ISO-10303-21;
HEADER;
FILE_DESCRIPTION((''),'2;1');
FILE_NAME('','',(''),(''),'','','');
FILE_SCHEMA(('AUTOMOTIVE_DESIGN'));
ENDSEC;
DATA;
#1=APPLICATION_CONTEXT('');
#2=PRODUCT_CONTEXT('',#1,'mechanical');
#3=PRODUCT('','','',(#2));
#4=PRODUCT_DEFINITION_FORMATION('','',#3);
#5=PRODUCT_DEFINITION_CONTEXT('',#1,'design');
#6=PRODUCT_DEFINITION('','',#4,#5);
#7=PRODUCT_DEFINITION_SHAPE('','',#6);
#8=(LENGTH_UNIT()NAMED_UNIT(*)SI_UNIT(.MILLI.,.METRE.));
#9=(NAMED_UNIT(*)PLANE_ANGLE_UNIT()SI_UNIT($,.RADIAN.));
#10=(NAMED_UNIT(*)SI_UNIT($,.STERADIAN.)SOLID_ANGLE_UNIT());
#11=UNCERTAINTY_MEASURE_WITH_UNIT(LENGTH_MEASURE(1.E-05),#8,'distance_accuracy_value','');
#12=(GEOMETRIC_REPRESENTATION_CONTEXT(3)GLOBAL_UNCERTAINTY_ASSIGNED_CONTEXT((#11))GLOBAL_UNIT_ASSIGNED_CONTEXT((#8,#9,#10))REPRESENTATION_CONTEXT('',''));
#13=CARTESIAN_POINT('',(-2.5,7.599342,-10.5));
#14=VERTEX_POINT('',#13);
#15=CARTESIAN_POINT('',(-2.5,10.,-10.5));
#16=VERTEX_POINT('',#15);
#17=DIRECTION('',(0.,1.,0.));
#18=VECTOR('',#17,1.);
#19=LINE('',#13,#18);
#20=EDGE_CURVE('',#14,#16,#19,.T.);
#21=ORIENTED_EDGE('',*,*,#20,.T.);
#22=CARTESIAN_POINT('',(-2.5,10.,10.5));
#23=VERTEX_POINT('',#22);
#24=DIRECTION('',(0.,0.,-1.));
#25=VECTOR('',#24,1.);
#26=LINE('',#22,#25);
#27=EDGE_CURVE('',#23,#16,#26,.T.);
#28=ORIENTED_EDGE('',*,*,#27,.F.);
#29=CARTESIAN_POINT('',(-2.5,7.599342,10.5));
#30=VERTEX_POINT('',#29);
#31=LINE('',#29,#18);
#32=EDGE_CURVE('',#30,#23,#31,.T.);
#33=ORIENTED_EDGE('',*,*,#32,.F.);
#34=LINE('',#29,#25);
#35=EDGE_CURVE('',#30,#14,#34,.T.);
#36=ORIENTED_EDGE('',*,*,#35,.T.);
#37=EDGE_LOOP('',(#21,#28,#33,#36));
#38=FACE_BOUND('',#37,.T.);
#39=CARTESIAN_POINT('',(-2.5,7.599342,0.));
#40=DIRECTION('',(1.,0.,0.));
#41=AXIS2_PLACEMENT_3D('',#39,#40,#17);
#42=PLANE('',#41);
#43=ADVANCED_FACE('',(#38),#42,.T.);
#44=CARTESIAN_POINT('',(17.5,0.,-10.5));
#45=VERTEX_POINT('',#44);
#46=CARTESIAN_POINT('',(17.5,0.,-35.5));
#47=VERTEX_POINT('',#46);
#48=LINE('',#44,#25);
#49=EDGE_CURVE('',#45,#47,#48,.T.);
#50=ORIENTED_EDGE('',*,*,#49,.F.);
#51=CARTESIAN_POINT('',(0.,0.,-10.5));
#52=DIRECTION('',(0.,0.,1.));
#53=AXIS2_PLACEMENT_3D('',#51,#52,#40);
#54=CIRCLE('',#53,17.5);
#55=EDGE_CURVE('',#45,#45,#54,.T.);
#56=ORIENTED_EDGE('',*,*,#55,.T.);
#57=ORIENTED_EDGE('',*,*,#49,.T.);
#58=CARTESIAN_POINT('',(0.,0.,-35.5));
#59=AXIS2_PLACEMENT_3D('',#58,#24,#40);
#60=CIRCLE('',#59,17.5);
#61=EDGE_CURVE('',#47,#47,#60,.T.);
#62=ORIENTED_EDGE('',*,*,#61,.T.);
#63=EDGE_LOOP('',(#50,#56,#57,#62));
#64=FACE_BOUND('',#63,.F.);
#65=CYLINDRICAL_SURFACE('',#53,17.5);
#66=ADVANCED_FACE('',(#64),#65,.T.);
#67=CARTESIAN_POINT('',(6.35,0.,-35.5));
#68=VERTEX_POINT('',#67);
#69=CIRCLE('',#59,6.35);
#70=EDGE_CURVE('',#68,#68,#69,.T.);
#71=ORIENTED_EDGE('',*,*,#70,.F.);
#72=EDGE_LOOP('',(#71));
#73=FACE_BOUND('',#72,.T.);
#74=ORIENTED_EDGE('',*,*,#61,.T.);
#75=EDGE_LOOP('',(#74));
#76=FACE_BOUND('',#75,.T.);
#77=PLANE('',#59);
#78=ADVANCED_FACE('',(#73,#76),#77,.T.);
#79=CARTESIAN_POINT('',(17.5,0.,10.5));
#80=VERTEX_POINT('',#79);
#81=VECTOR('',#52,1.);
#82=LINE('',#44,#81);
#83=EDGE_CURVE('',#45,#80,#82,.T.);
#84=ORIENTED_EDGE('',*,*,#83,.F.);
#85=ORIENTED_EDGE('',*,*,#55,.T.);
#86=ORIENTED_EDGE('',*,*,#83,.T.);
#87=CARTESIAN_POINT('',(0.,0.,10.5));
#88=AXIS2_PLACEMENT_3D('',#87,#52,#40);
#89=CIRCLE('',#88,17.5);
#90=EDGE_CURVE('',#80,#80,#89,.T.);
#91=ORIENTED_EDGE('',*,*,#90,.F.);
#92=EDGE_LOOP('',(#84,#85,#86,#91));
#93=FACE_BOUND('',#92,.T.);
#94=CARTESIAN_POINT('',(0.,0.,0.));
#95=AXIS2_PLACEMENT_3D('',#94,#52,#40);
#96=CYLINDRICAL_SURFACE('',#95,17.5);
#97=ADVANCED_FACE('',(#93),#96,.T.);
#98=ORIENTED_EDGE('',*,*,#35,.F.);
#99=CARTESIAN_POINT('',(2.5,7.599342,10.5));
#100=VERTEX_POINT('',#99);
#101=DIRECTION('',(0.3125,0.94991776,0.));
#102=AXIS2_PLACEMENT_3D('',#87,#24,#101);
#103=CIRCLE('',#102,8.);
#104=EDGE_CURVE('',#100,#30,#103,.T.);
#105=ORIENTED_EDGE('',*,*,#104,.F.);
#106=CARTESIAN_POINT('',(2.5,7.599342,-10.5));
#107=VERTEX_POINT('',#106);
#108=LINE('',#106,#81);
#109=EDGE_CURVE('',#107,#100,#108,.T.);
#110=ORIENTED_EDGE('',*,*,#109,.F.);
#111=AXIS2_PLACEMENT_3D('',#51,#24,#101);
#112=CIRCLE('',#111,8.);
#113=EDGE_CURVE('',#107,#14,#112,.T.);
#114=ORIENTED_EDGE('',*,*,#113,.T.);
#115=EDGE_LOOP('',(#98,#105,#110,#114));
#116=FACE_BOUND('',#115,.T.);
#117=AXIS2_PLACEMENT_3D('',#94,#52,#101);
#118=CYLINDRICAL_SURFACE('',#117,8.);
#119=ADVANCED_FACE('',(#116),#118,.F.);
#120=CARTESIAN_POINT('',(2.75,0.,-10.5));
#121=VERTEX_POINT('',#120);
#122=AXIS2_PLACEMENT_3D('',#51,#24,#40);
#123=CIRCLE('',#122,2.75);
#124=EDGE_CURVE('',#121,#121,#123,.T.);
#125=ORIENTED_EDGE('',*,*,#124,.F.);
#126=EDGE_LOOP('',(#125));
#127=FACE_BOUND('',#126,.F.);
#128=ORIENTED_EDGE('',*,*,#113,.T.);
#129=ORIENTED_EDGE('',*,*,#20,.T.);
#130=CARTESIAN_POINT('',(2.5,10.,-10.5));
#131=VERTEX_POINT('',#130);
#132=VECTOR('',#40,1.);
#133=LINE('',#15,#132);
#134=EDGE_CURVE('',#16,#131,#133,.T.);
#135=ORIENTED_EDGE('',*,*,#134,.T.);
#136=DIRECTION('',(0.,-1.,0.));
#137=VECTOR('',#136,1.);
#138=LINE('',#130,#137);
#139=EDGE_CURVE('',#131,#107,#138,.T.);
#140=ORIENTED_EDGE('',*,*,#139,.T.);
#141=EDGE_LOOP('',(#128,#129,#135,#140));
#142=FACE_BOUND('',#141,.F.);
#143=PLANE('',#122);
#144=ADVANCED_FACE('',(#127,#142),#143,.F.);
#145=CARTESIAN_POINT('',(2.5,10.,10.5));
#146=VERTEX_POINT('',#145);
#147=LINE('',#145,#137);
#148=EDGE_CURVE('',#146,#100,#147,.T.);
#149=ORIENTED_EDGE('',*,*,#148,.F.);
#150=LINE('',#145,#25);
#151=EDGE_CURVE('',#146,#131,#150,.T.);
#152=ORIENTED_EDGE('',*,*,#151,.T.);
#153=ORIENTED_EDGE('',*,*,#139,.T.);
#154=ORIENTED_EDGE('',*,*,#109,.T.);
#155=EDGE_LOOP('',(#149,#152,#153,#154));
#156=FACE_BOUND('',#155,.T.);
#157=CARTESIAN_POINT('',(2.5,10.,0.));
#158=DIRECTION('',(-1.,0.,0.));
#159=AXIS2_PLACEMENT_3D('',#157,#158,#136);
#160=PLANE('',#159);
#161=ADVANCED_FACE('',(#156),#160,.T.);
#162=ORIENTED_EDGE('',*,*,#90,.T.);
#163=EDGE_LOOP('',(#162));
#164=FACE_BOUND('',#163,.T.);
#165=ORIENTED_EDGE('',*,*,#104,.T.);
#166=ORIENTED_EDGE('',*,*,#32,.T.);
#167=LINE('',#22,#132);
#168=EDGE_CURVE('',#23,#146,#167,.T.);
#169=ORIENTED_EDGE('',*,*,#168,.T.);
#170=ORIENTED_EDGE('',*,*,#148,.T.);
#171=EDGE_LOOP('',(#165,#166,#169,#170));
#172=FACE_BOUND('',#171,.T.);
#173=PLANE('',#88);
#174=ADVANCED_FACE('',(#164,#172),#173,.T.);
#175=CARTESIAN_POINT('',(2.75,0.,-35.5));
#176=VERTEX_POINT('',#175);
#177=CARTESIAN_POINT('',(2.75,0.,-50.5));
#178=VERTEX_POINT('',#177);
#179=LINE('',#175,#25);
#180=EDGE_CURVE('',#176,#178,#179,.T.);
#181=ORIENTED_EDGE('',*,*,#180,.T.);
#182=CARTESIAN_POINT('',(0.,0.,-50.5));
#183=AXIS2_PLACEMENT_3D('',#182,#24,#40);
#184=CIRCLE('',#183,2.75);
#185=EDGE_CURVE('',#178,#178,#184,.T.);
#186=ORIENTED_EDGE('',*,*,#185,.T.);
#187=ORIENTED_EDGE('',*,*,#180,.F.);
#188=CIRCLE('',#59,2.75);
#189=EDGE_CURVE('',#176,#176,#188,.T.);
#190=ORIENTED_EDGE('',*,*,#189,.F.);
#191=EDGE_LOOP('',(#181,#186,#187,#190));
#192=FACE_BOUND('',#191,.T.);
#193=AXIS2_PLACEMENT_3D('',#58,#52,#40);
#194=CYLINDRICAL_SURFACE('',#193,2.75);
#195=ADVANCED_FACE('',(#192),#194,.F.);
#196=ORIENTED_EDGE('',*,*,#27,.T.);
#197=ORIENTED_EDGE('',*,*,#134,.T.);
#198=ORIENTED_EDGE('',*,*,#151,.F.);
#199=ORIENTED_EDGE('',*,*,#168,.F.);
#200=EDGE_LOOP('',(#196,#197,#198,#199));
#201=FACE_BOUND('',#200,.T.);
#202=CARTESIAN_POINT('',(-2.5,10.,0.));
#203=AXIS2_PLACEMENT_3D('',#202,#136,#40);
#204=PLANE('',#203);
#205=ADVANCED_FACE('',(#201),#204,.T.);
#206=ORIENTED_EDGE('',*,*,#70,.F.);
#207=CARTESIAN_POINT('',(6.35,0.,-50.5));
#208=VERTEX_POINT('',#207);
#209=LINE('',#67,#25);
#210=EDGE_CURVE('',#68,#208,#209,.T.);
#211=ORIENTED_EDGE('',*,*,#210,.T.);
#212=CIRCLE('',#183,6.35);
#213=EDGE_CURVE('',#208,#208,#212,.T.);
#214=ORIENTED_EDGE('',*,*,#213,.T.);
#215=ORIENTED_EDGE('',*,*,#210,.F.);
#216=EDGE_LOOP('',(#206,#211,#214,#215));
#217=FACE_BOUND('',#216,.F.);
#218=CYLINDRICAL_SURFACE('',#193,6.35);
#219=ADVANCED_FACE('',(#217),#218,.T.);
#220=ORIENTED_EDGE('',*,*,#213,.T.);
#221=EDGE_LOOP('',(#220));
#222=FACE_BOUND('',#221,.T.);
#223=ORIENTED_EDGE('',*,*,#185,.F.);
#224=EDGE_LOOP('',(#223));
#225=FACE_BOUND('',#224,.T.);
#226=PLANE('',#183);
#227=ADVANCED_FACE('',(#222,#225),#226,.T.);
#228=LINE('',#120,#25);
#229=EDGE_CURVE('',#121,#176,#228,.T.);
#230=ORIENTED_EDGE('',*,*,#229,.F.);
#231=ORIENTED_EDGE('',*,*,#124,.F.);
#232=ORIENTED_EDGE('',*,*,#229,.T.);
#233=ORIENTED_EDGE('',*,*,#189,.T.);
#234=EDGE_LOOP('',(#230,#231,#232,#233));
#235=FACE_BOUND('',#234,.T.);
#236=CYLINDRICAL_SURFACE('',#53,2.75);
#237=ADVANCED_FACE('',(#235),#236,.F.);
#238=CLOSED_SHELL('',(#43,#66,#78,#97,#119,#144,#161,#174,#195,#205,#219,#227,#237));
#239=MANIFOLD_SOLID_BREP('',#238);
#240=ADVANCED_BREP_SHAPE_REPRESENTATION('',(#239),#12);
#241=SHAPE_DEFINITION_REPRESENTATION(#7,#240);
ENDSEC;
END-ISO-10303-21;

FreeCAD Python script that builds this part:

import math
import FreeCAD as App
import Part
import Sketcher
Q = App.Units.Quantity

doc = App.newDocument("Part")
body = doc.addObject("PartDesign::Body", "Body")

# Sketch on XY plane
sketch1 = doc.addObject("Sketcher::SketchObject", "Sketch")
body.addObject(sketch1)
sketch1.AttachmentSupport = (doc.XY_Plane, [""])
sketch1.MapMode = "FlatFace"
sketch1.addGeometry(Part.Circle(App.Vector(0, 0, 0), App.Vector(0, 0, 1), 17.5), False)
sketch1.addGeometry(Part.LineSegment(App.Vector(2.5, 10, 0), App.Vector(2.5, 7.599342, 0)), False)
sketch1.addGeometry(Part.ArcOfCircle(Part.Circle(App.Vector(0, 0, 0), App.Vector(0, 0, 1), 8), math.radians(108.209957), math.radians(431.790043)), False)
sketch1.addGeometry(Part.LineSegment(App.Vector(-2.5, 7.599342, 0), App.Vector(-2.5, 10, 0)), False)
sketch1.addGeometry(Part.LineSegment(App.Vector(-2.5, 10, 0), App.Vector(2.5, 10, 0)), False)
sketch1.addConstraint(Sketcher.Constraint("Coincident", 1, 2, 2, 2))
sketch1.addConstraint(Sketcher.Constraint("Coincident", 2, 1, 3, 1))
sketch1.addConstraint(Sketcher.Constraint("Coincident", 3, 2, 4, 1))
sketch1.addConstraint(Sketcher.Constraint("Coincident", 4, 2, 1, 1))
sketch1.addConstraint(Sketcher.Constraint("Vertical", 1))
sketch1.addConstraint(Sketcher.Constraint("Vertical", 3))
sketch1.addConstraint(Sketcher.Constraint("Horizontal", 4))
sketch1.addConstraint(Sketcher.Constraint("Coincident", 0, 3, -1, 1))
sketch1.addConstraint(Sketcher.Constraint("Coincident", 2, 3, -1, 1))
sketch1.addConstraint(Sketcher.Constraint("Horizontal", 1, 2, 2, 1))
sketch1.addConstraint(Sketcher.Constraint("Diameter", 0, Q("35 mm")))
sketch1.addConstraint(Sketcher.Constraint("Radius", 2, Q("8 mm")))
sketch1.addConstraint(Sketcher.Constraint("DistanceX", 4, 1, 4, 2, Q("5 mm")))
sketch1.addConstraint(Sketcher.Constraint("DistanceY", -1, 1, 3, 2, Q("10 mm")))
pad1 = doc.addObject("PartDesign::Pad", "Pad")
body.addObject(pad1)
pad1.Profile = sketch1
pad1.Length = 21
pad1.Midplane = True

# Sketch on XY plane
sketch2 = doc.addObject("Sketcher::SketchObject", "Sketch001")
body.addObject(sketch2)
sketch2.AttachmentSupport = (doc.XY_Plane, [""])
sketch2.MapMode = "FlatFace"
sketch2.AttachmentOffset = App.Placement(App.Vector(0, 0, -10.5), App.Rotation())
sketch2.addGeometry(Part.Circle(App.Vector(0, 0, 0), App.Vector(0, 0, 1), 17.5), False)
sketch2.addGeometry(Part.Circle(App.Vector(0, 0, 0), App.Vector(0, 0, 1), 2.75), False)
sketch2.addConstraint(Sketcher.Constraint("Coincident", 0, 3, -1, 1))
sketch2.addConstraint(Sketcher.Constraint("Coincident", 1, 3, -1, 1))
sketch2.addConstraint(Sketcher.Constraint("Diameter", 0, Q("35 mm")))
sketch2.addConstraint(Sketcher.Constraint("Diameter", 1, Q("5.5 mm")))
pad2 = doc.addObject("PartDesign::Pad", "Pad001")
body.addObject(pad2)
pad2.Profile = sketch2
pad2.Length = 25
pad2.Reversed = True

# Sketch on XY plane
sketch3 = doc.addObject("Sketcher::SketchObject", "Sketch002")
body.addObject(sketch3)
sketch3.AttachmentSupport = (doc.XY_Plane, [""])
sketch3.MapMode = "FlatFace"
sketch3.AttachmentOffset = App.Placement(App.Vector(0, 0, -35.5), App.Rotation())
sketch3.addGeometry(Part.Circle(App.Vector(0, 0, 0), App.Vector(0, 0, 1), 6.35), False)
sketch3.addGeometry(Part.Circle(App.Vector(0, 0, 0), App.Vector(0, 0, 1), 2.75), False)
sketch3.addConstraint(Sketcher.Constraint("Coincident", 0, 3, -1, 1))
sketch3.addConstraint(Sketcher.Constraint("Coincident", 1, 3, -1, 1))
sketch3.addConstraint(Sketcher.Constraint("Diameter", 0, Q("12.7 mm")))
sketch3.addConstraint(Sketcher.Constraint("Diameter", 1, Q("5.5 mm")))
pad3 = doc.addObject("PartDesign::Pad", "Pad002")
body.addObject(pad3)
pad3.Profile = sketch3
pad3.Length = 15
pad3.Reversed = True

doc.recompute()
